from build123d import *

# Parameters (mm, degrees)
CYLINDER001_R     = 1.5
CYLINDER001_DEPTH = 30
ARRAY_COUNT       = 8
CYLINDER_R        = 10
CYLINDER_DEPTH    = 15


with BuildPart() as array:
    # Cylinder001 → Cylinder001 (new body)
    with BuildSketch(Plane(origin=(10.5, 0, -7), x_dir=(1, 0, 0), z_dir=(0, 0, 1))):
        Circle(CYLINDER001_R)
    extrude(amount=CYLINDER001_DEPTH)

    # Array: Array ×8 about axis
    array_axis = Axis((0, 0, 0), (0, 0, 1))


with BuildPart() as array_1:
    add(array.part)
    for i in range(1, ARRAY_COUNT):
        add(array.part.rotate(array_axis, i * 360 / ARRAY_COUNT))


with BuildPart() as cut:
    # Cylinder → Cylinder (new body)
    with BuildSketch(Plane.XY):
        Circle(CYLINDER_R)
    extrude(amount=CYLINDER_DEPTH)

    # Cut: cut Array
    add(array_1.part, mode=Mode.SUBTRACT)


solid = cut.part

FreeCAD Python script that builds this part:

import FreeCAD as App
import Part
import Sketcher
from FreeCAD import Vector

doc = App.newDocument("Part")
body = doc.addObject("PartDesign::Body", "Body")

sketch1 = body.newObject("Sketcher::SketchObject", "Sketch")
sketch1.AttachmentSupport = (doc.getObject("XY_Plane"), [""])
sketch1.MapMode = "FlatFace"
sketch1.AttachmentOffset = App.Placement(Vector(0, 0, -7), App.Rotation())
sketch1.addGeometry(Part.Circle(Vector(10.5, 0, 0), Vector(0, 0, 1), 1.5), False)
sketch1.addConstraint([
    Sketcher.Constraint("PointOnObject", 0, 3, -1),
    Sketcher.Constraint("Diameter", 0, 3.0),
    Sketcher.Constraint("DistanceX", -1, 1, 0, 3, 10.5),
])
pad1 = body.newObject("PartDesign::Pad", "Pad")
pad1.Profile = sketch1
pad1.Length = 30
body2 = doc.addObject("PartDesign::Body", "Body001")
body2.AllowCompound = True
doc.recompute()

body2.BaseFeature = body
doc.recompute()

body3 = doc.addObject("PartDesign::Body", "Body002")
body3.BaseFeature = body
body3.Placement = App.Placement(Vector(0, 0, 0), App.Rotation(Vector(0, 0, 1), 45))
boolean = body2.newObject("PartDesign::Boolean", "Boolean")
boolean.Type = "Fuse"
boolean.addObjects([body3])
doc.recompute()

body4 = doc.addObject("PartDesign::Body", "Body003")
body4.BaseFeature = body
body4.Placement = App.Placement(Vector(0, 0, 0), App.Rotation(Vector(0, 0, 1), 90))
boolean2 = body2.newObject("PartDesign::Boolean", "Boolean001")
boolean2.Type = "Fuse"
boolean2.addObjects([body4])
doc.recompute()

body5 = doc.addObject("PartDesign::Body", "Body004")
body5.BaseFeature = body
body5.Placement = App.Placement(Vector(0, 0, 0), App.Rotation(Vector(0, 0, 1), 135))
boolean3 = body2.newObject("PartDesign::Boolean", "Boolean002")
boolean3.Type = "Fuse"
boolean3.addObjects([body5])
doc.recompute()

body6 = doc.addObject("PartDesign::Body", "Body005")
body6.BaseFeature = body
body6.Placement = App.Placement(Vector(0, 0, 0), App.Rotation(Vector(0, 0, 1), 180))
boolean4 = body2.newObject("PartDesign::Boolean", "Boolean003")
boolean4.Type = "Fuse"
boolean4.addObjects([body6])
doc.recompute()

body7 = doc.addObject("PartDesign::Body", "Body006")
body7.BaseFeature = body
body7.Placement = App.Placement(Vector(0, 0, 0), App.Rotation(Vector(0, 0, 1), 225))
boolean5 = body2.newObject("PartDesign::Boolean", "Boolean004")
boolean5.Type = "Fuse"
boolean5.addObjects([body7])
doc.recompute()

body8 = doc.addObject("PartDesign::Body", "Body007")
body8.BaseFeature = body
body8.Placement = App.Placement(Vector(0, 0, 0), App.Rotation(Vector(0, 0, 1), 270))
boolean6 = body2.newObject("PartDesign::Boolean", "Boolean005")
boolean6.Type = "Fuse"
boolean6.addObjects([body8])
doc.recompute()

body.Placement = App.Placement(Vector(0, 0, 0), App.Rotation(Vector(0, 0, 1), 315))
boolean7 = body2.newObject("PartDesign::Boolean", "Boolean006")
boolean7.Type = "Fuse"
boolean7.addObjects([body])
body9 = doc.addObject("PartDesign::Body", "Body008")

sketch2 = body9.newObject("Sketcher::SketchObject", "Sketch001")
sketch2.AttachmentSupport = (doc.getObject("XY_Plane008"), [""])
sketch2.MapMode = "FlatFace"
sketch2.addGeometry(Part.Circle(Vector(0, 0, 0), Vector(0, 0, 1), 10), False)
sketch2.addConstraint([
    Sketcher.Constraint("Coincident", 0, 3, -1, 1),
    Sketcher.Constraint("Diameter", 0, 20.0),
])
pad2 = body9.newObject("PartDesign::Pad", "Pad001")
pad2.Profile = sketch2
pad2.Length = 15
doc.recompute()

boolean8 = body9.newObject("PartDesign::Boolean", "Boolean007")
boolean8.Type = "Cut"
boolean8.addObjects([body2])

doc.recompute()
